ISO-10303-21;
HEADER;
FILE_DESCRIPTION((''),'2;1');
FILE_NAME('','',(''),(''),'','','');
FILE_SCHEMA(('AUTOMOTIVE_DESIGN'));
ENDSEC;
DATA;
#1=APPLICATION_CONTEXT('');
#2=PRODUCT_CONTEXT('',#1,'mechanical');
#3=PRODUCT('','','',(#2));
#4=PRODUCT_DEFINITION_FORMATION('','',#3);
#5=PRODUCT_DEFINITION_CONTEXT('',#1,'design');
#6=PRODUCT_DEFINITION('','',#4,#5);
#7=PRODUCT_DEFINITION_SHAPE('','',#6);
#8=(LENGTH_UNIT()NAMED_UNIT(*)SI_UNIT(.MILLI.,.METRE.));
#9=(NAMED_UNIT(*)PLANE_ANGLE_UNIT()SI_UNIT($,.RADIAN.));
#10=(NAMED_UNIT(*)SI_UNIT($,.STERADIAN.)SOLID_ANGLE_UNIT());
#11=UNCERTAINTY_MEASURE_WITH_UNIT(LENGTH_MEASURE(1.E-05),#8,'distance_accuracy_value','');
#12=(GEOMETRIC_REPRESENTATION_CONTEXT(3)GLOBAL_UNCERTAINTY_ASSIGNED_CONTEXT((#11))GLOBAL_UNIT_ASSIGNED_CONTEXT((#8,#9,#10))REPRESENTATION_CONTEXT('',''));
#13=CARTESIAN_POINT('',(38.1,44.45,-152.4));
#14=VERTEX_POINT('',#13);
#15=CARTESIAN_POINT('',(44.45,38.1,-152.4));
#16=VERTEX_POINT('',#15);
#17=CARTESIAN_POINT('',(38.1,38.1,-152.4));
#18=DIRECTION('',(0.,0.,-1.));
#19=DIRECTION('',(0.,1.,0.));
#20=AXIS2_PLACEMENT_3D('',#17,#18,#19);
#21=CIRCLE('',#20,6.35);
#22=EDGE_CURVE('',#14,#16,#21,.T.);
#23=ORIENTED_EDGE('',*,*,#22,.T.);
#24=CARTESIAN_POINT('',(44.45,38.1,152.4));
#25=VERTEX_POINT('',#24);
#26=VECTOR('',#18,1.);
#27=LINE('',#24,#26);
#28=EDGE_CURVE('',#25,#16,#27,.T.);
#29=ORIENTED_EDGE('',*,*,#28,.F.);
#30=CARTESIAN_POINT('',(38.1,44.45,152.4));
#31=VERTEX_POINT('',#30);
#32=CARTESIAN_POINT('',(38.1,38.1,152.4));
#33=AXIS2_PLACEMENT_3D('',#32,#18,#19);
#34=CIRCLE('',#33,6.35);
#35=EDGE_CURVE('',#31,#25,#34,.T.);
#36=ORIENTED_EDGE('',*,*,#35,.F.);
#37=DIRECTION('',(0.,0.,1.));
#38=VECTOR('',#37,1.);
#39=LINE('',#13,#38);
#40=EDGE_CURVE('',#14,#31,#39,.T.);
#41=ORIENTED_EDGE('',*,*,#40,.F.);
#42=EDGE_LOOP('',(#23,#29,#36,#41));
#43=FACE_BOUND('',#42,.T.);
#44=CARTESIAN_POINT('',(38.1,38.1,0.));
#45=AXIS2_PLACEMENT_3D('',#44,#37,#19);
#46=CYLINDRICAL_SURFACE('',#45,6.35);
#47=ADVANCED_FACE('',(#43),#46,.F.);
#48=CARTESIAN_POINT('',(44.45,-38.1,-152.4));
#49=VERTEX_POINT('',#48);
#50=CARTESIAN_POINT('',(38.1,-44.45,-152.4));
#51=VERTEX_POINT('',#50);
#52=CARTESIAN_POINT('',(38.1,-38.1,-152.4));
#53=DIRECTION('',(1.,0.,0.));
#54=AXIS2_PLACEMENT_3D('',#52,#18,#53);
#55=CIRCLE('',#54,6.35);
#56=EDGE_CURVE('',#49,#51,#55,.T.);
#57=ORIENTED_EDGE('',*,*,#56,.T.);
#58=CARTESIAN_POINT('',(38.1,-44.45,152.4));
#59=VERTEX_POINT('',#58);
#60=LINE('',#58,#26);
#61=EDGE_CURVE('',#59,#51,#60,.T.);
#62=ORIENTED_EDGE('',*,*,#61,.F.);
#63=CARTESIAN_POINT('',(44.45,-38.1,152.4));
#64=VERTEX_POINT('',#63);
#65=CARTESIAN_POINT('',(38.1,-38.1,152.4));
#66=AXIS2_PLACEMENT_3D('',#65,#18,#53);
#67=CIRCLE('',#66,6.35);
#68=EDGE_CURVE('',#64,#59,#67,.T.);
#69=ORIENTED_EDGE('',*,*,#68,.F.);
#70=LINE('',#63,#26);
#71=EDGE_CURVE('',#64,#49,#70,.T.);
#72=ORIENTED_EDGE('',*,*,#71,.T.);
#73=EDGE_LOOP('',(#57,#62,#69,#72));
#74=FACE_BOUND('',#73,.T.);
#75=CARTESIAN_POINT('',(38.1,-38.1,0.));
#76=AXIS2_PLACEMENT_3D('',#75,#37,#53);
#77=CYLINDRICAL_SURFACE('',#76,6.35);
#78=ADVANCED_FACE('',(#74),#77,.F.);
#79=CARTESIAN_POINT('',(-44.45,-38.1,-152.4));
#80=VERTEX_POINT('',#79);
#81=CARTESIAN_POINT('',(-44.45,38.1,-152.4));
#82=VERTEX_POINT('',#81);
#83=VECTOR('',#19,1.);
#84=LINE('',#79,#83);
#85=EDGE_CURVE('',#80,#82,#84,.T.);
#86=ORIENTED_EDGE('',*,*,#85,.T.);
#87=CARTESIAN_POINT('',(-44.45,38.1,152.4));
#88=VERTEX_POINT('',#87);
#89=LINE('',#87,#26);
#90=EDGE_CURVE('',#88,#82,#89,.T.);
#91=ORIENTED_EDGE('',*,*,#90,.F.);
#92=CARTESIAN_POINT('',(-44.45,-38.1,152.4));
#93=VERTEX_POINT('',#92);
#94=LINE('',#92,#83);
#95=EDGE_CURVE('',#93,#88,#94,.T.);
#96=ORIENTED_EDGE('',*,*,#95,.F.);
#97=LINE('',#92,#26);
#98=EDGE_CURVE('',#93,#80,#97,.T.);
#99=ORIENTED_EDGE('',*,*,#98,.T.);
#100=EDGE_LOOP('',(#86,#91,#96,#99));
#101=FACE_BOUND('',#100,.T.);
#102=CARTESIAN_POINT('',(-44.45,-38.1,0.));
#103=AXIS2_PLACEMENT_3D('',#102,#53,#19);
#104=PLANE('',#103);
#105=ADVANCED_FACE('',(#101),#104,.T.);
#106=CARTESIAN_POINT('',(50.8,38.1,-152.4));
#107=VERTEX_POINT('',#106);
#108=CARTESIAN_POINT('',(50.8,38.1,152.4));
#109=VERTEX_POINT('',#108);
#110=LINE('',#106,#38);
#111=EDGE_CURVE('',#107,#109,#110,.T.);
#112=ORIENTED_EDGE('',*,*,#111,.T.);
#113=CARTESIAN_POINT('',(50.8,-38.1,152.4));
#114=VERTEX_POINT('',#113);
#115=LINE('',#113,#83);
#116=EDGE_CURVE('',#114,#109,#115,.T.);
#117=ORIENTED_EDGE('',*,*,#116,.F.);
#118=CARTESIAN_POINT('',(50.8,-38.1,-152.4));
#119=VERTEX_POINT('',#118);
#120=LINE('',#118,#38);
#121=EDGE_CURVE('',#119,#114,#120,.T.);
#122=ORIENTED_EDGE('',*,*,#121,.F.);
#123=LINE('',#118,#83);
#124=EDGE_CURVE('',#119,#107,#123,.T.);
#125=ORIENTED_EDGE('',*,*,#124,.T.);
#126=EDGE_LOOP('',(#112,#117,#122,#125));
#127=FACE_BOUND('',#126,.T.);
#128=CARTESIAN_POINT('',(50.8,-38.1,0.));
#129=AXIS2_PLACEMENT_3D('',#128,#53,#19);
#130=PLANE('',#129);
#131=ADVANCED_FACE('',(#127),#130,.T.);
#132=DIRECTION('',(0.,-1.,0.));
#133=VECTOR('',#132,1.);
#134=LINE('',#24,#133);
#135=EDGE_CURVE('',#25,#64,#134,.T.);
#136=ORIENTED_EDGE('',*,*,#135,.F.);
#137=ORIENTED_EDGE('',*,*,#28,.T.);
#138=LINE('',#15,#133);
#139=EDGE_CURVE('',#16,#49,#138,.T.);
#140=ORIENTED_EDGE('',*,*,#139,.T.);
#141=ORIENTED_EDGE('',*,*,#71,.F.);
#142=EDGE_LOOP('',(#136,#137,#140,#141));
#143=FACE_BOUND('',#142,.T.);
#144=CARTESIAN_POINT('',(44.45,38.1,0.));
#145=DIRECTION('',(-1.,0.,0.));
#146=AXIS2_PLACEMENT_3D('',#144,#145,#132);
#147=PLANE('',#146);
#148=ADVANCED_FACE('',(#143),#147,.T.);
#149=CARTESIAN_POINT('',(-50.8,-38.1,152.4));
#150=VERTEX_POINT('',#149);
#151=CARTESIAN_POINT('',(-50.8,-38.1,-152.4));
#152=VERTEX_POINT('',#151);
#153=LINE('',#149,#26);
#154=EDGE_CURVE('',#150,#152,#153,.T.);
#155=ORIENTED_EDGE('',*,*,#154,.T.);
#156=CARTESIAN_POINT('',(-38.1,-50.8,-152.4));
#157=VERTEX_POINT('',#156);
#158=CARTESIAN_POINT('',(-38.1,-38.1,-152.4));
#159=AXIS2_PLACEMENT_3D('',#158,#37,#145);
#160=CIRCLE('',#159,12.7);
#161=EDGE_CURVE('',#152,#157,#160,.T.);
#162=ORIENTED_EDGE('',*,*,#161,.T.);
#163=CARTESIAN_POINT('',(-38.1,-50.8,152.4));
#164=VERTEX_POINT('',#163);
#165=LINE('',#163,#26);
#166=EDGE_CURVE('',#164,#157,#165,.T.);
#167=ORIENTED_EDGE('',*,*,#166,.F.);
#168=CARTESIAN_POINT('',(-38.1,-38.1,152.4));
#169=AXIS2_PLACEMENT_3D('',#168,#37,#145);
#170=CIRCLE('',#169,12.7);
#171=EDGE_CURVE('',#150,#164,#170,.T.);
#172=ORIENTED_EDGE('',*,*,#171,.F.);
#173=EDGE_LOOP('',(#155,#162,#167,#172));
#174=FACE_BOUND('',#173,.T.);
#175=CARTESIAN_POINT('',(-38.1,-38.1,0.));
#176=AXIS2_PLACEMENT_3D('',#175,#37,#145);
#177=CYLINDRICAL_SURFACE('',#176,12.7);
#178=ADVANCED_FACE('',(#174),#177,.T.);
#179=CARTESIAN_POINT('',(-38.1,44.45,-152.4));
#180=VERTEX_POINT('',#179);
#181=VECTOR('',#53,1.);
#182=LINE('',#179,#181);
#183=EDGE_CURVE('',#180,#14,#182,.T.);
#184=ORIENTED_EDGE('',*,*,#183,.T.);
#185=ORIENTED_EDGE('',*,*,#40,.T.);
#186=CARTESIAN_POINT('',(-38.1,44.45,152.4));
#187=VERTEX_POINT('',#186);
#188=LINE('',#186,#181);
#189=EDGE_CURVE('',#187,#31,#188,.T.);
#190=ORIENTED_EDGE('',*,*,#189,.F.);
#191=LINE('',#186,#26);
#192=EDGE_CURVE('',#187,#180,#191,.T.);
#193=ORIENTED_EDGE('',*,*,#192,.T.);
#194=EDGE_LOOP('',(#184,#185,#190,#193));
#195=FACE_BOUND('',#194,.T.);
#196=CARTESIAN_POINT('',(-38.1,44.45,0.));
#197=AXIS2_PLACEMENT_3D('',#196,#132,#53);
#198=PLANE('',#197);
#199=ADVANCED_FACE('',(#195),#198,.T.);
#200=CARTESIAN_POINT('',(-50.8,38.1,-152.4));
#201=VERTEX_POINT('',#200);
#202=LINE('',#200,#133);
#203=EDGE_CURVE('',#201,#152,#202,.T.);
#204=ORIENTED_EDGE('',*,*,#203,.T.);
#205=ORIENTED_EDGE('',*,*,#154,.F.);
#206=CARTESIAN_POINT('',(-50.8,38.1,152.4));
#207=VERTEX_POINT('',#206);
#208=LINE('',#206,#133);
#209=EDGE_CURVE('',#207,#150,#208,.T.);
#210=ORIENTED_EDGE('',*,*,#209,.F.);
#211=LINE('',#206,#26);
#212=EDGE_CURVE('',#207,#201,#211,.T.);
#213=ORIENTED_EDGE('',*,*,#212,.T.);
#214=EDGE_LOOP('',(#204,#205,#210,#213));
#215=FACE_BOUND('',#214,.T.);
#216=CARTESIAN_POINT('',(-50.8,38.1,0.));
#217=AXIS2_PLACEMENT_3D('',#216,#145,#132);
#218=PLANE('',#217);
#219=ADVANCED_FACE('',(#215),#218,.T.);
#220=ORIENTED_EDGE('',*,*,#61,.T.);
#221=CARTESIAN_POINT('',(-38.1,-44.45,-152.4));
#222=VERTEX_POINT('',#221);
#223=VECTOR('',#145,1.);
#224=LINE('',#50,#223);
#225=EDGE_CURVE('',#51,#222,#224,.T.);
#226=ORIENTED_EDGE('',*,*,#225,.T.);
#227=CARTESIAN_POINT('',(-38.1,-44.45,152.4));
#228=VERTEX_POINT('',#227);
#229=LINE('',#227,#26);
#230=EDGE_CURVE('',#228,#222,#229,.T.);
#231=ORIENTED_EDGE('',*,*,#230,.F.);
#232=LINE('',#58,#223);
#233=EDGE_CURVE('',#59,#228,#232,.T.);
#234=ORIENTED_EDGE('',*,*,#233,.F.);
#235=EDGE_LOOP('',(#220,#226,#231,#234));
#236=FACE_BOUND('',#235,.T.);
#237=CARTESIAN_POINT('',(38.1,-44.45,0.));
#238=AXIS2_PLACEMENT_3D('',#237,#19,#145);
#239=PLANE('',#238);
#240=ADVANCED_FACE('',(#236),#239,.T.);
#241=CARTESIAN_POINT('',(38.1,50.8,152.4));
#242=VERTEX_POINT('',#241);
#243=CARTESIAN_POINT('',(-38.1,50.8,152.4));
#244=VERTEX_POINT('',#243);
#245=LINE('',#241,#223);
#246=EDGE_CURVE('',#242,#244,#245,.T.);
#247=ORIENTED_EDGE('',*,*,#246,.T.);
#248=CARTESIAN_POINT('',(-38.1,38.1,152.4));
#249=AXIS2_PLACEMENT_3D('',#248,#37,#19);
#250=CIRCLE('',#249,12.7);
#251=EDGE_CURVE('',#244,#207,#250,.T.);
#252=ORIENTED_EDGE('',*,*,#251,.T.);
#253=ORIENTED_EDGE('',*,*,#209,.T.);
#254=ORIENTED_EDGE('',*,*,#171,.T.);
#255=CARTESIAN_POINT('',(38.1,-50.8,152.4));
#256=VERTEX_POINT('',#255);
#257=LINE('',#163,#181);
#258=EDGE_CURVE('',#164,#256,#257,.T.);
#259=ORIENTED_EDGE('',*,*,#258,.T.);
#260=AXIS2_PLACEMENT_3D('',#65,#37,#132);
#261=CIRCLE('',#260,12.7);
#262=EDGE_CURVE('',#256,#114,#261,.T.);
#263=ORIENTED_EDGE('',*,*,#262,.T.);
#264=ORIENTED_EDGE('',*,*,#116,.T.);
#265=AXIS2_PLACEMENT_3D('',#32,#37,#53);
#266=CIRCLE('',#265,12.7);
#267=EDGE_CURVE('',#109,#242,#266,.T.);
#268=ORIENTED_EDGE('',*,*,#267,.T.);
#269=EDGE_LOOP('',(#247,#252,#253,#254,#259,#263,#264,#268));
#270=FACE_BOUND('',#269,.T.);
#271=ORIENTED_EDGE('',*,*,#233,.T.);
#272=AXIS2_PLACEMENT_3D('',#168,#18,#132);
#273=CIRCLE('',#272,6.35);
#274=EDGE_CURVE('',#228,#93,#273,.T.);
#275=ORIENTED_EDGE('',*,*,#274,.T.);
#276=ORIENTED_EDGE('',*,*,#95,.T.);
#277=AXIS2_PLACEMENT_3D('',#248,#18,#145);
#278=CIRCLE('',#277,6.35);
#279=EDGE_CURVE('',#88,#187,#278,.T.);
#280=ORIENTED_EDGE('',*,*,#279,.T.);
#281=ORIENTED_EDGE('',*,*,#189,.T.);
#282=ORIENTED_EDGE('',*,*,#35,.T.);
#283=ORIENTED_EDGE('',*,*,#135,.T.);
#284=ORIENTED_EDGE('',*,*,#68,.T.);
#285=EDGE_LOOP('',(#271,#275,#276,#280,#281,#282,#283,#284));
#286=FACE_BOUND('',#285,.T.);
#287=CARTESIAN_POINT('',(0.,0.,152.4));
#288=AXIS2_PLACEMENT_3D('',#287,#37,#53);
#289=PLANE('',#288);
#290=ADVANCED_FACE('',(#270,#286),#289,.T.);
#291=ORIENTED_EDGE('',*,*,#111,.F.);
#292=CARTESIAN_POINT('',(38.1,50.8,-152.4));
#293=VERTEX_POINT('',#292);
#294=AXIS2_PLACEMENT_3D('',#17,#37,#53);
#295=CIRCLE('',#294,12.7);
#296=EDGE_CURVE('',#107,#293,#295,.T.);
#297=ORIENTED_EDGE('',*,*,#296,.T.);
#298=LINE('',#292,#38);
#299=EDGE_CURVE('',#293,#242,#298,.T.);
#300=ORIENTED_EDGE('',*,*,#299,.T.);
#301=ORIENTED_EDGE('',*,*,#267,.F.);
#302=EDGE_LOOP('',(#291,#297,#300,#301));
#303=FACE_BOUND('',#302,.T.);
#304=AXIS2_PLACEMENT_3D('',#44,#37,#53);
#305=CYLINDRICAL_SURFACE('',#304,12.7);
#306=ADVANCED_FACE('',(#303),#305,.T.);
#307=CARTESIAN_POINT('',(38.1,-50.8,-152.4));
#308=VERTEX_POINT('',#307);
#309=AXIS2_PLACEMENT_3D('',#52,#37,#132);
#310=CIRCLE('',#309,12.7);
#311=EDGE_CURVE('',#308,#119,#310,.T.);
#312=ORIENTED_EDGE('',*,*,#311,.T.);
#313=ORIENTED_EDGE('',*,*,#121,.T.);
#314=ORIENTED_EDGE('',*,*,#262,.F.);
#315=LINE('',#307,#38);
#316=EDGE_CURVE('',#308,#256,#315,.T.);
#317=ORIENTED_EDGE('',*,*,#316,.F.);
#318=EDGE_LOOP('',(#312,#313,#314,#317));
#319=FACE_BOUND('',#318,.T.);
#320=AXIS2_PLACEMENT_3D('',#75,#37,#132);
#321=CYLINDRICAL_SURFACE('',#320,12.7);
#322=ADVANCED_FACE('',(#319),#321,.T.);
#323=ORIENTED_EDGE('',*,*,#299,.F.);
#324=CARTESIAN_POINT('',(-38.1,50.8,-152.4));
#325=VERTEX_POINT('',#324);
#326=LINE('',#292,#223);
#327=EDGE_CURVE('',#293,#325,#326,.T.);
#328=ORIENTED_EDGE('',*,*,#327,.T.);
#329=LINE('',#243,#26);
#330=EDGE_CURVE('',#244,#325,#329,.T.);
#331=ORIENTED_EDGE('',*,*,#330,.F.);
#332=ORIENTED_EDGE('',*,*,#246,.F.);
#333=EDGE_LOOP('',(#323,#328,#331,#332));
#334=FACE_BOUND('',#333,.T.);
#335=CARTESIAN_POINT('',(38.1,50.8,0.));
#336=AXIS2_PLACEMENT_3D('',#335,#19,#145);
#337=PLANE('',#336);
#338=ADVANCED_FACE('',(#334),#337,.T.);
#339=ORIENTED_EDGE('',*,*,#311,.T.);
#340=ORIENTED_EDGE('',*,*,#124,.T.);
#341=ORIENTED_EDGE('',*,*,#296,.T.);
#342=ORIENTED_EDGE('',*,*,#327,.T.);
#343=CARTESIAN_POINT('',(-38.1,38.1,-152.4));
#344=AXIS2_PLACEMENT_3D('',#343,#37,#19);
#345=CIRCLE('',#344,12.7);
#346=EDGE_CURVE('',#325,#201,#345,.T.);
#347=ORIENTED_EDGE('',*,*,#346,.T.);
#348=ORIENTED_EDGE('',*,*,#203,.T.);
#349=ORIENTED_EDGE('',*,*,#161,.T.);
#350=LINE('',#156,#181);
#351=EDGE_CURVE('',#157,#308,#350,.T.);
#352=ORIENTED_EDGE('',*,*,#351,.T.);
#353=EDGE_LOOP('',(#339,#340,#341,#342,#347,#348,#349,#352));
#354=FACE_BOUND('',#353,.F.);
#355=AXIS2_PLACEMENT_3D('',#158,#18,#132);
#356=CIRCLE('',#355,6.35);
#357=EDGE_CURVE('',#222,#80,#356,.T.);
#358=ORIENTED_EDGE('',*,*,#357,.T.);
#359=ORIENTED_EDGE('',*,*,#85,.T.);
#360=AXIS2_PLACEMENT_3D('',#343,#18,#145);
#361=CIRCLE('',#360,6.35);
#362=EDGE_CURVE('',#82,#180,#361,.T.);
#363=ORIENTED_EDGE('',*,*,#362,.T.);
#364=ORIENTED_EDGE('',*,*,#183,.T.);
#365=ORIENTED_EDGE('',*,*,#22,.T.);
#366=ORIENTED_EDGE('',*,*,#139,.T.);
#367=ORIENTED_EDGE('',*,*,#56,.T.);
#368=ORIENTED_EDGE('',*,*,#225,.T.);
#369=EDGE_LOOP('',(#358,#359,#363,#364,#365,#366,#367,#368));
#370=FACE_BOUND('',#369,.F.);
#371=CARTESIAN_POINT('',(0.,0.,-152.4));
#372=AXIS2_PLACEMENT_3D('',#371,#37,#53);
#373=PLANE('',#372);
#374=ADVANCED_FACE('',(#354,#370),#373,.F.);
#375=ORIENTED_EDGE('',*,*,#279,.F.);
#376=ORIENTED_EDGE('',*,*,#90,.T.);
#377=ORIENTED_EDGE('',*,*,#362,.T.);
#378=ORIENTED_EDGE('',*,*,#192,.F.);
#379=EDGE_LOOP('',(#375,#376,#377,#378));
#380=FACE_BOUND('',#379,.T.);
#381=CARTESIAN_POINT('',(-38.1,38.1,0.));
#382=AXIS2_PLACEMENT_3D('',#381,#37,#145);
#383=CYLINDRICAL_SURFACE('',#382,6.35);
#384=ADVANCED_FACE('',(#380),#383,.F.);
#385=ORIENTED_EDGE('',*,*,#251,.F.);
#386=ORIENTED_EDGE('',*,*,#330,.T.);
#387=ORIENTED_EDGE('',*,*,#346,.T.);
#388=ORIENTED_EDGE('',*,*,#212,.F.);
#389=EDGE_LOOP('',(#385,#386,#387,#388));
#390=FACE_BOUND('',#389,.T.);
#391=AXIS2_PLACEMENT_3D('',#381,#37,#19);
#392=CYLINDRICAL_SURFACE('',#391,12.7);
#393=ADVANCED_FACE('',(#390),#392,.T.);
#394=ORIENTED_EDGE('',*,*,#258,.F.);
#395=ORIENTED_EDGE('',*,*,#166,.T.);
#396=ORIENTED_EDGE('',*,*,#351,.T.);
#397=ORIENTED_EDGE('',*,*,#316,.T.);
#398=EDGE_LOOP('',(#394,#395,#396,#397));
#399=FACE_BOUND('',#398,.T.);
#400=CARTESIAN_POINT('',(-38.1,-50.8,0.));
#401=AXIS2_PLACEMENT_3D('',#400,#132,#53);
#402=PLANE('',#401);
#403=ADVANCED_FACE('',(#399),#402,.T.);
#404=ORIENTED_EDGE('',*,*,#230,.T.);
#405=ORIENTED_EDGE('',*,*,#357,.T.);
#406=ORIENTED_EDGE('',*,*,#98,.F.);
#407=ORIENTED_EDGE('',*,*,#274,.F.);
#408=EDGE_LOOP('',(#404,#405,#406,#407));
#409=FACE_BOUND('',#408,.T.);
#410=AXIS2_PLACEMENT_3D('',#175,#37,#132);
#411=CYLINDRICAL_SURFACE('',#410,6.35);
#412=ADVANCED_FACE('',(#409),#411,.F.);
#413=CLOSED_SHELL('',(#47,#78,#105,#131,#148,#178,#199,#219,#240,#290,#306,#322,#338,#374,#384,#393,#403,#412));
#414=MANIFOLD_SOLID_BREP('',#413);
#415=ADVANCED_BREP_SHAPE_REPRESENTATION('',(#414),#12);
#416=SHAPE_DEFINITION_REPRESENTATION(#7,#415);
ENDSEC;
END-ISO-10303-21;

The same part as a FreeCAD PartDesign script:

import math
import FreeCAD as App
import Part
import Sketcher
from FreeCAD import Vector
Q = App.Units.Quantity

doc = App.newDocument("Part")
params = doc.addObject("Spreadsheet::Sheet", "Params")
for row, (alias, value) in enumerate([
    ("sketch1_radius", "0.5 in"),
    ("sketch1_width", "3 in"),
    ("sketch1_radius2", "0.25 in"),
    ("pad1_length", "12 in"),
], start=1):
    params.set(f"A{row}", alias)
    params.set(f"B{row}", "=" + value)
    params.setAlias(f"B{row}", alias)

body = doc.addObject("PartDesign::Body", "Body")

# Sketch on XY plane
sketch1 = body.newObject("Sketcher::SketchObject", "Sketch")
sketch1.AttachmentSupport = (doc.getObject("XY_Plane"), [""])
sketch1.MapMode = "FlatFace"
sketch1.addGeometry([
    Part.LineSegment(Vector(-38, -51, 0), Vector(38, -51, 0)),  # 0
    Part.ArcOfCircle(Part.Circle(Vector(38, -38, 0), Vector(0, 0, 1), 13), math.radians(-90), math.radians(0)),  # 1
    Part.LineSegment(Vector(51, -38, 0), Vector(51, 38, 0)),  # 2
    Part.ArcOfCircle(Part.Circle(Vector(38, 38, 0), Vector(0, 0, 1), 13), math.radians(0), math.radians(90)),  # 3
    Part.LineSegment(Vector(38, 51, 0), Vector(-38, 51, 0)),  # 4
    Part.ArcOfCircle(Part.Circle(Vector(-38, 38, 0), Vector(0, 0, 1), 13), math.radians(90), math.radians(180)),  # 5
    Part.LineSegment(Vector(-51, 38, 0), Vector(-51, -38, 0)),  # 6
    Part.ArcOfCircle(Part.Circle(Vector(-38, -38, 0), Vector(0, 0, 1), 13), math.radians(180), math.radians(270)),  # 7
    Part.LineSegment(Vector(-38, 44, 0), Vector(38, 44, 0)),  # 8
    Part.ArcOfCircle(Part.Circle(Vector(38, 38, 0), Vector(0, 0, 1), 6), math.radians(0), math.radians(90)),  # 9
    Part.LineSegment(Vector(44, 38, 0), Vector(44, -38, 0)),  # 10
    Part.ArcOfCircle(Part.Circle(Vector(38, -38, 0), Vector(0, 0, 1), 6), math.radians(-90), math.radians(0)),  # 11
    Part.LineSegment(Vector(38, -44, 0), Vector(-38, -44, 0)),  # 12
    Part.ArcOfCircle(Part.Circle(Vector(-38, -38, 0), Vector(0, 0, 1), 6), math.radians(180), math.radians(270)),  # 13
    Part.LineSegment(Vector(-44, -38, 0), Vector(-44, 38, 0)),  # 14
    Part.ArcOfCircle(Part.Circle(Vector(-38, 38, 0), Vector(0, 0, 1), 6), math.radians(90), math.radians(180)),  # 15
], False)
sketch1.addConstraint([
    Sketcher.Constraint("Tangent", 0, 2, 1, 1),
    Sketcher.Constraint("Tangent", 1, 2, 2, 1),
    Sketcher.Constraint("Tangent", 2, 2, 3, 1),
    Sketcher.Constraint("Tangent", 3, 2, 4, 1),
    Sketcher.Constraint("Tangent", 4, 2, 5, 1),
    Sketcher.Constraint("Tangent", 5, 2, 6, 1),
    Sketcher.Constraint("Tangent", 6, 2, 7, 1),
    Sketcher.Constraint("Tangent", 7, 2, 0, 1),
    Sketcher.Constraint("Tangent", 8, 2, 9, 2),
    Sketcher.Constraint("Tangent", 9, 1, 10, 1),
    Sketcher.Constraint("Tangent", 10, 2, 11, 2),
    Sketcher.Constraint("Tangent", 11, 1, 12, 1),
    Sketcher.Constraint("Tangent", 12, 2, 13, 2),
    Sketcher.Constraint("Tangent", 13, 1, 14, 1),
    Sketcher.Constraint("Tangent", 14, 2, 15, 2),
    Sketcher.Constraint("Tangent", 15, 1, 8, 1),
    Sketcher.Constraint("Horizontal", 0),
    Sketcher.Constraint("Vertical", 2),
    Sketcher.Constraint("Horizontal", 4),
    Sketcher.Constraint("Vertical", 6),
    Sketcher.Constraint("Horizontal", 8),
    Sketcher.Constraint("Vertical", 10),
    Sketcher.Constraint("Horizontal", 12),
    Sketcher.Constraint("Vertical", 14),
    Sketcher.Constraint("Coincident", 9, 3, 3, 3),
    Sketcher.Constraint("Coincident", 11, 3, 1, 3),
    Sketcher.Constraint("Coincident", 13, 3, 7, 3),
    Sketcher.Constraint("Equal", 1, 3),
    Sketcher.Constraint("Equal", 3, 5),
    Sketcher.Constraint("Equal", 5, 7),
    Sketcher.Constraint("Equal", 13, 15),
    Sketcher.Constraint("Symmetric", 1, 3, 5, 3, -1, 1),
    Sketcher.Constraint("Equal", 12, 2),
    Sketcher.Constraint("Radius", 1, Q("0.5 in")),
    Sketcher.Constraint("DistanceX", 0, 1, 0, 2, Q("3 in")),
    Sketcher.Constraint("Radius", 9, Q("0.25 in")),
])
sketch1.setExpression("Constraints[33]", "Params.sketch1_radius")
sketch1.setExpression("Constraints[34]", "Params.sketch1_width")
sketch1.setExpression("Constraints[35]", "Params.sketch1_radius2")
pad1 = body.newObject("PartDesign::Pad", "Pad")
pad1.Profile = sketch1
pad1.setExpression("Length", "Params.pad1_length")
pad1.Midplane = True

doc.recompute()
